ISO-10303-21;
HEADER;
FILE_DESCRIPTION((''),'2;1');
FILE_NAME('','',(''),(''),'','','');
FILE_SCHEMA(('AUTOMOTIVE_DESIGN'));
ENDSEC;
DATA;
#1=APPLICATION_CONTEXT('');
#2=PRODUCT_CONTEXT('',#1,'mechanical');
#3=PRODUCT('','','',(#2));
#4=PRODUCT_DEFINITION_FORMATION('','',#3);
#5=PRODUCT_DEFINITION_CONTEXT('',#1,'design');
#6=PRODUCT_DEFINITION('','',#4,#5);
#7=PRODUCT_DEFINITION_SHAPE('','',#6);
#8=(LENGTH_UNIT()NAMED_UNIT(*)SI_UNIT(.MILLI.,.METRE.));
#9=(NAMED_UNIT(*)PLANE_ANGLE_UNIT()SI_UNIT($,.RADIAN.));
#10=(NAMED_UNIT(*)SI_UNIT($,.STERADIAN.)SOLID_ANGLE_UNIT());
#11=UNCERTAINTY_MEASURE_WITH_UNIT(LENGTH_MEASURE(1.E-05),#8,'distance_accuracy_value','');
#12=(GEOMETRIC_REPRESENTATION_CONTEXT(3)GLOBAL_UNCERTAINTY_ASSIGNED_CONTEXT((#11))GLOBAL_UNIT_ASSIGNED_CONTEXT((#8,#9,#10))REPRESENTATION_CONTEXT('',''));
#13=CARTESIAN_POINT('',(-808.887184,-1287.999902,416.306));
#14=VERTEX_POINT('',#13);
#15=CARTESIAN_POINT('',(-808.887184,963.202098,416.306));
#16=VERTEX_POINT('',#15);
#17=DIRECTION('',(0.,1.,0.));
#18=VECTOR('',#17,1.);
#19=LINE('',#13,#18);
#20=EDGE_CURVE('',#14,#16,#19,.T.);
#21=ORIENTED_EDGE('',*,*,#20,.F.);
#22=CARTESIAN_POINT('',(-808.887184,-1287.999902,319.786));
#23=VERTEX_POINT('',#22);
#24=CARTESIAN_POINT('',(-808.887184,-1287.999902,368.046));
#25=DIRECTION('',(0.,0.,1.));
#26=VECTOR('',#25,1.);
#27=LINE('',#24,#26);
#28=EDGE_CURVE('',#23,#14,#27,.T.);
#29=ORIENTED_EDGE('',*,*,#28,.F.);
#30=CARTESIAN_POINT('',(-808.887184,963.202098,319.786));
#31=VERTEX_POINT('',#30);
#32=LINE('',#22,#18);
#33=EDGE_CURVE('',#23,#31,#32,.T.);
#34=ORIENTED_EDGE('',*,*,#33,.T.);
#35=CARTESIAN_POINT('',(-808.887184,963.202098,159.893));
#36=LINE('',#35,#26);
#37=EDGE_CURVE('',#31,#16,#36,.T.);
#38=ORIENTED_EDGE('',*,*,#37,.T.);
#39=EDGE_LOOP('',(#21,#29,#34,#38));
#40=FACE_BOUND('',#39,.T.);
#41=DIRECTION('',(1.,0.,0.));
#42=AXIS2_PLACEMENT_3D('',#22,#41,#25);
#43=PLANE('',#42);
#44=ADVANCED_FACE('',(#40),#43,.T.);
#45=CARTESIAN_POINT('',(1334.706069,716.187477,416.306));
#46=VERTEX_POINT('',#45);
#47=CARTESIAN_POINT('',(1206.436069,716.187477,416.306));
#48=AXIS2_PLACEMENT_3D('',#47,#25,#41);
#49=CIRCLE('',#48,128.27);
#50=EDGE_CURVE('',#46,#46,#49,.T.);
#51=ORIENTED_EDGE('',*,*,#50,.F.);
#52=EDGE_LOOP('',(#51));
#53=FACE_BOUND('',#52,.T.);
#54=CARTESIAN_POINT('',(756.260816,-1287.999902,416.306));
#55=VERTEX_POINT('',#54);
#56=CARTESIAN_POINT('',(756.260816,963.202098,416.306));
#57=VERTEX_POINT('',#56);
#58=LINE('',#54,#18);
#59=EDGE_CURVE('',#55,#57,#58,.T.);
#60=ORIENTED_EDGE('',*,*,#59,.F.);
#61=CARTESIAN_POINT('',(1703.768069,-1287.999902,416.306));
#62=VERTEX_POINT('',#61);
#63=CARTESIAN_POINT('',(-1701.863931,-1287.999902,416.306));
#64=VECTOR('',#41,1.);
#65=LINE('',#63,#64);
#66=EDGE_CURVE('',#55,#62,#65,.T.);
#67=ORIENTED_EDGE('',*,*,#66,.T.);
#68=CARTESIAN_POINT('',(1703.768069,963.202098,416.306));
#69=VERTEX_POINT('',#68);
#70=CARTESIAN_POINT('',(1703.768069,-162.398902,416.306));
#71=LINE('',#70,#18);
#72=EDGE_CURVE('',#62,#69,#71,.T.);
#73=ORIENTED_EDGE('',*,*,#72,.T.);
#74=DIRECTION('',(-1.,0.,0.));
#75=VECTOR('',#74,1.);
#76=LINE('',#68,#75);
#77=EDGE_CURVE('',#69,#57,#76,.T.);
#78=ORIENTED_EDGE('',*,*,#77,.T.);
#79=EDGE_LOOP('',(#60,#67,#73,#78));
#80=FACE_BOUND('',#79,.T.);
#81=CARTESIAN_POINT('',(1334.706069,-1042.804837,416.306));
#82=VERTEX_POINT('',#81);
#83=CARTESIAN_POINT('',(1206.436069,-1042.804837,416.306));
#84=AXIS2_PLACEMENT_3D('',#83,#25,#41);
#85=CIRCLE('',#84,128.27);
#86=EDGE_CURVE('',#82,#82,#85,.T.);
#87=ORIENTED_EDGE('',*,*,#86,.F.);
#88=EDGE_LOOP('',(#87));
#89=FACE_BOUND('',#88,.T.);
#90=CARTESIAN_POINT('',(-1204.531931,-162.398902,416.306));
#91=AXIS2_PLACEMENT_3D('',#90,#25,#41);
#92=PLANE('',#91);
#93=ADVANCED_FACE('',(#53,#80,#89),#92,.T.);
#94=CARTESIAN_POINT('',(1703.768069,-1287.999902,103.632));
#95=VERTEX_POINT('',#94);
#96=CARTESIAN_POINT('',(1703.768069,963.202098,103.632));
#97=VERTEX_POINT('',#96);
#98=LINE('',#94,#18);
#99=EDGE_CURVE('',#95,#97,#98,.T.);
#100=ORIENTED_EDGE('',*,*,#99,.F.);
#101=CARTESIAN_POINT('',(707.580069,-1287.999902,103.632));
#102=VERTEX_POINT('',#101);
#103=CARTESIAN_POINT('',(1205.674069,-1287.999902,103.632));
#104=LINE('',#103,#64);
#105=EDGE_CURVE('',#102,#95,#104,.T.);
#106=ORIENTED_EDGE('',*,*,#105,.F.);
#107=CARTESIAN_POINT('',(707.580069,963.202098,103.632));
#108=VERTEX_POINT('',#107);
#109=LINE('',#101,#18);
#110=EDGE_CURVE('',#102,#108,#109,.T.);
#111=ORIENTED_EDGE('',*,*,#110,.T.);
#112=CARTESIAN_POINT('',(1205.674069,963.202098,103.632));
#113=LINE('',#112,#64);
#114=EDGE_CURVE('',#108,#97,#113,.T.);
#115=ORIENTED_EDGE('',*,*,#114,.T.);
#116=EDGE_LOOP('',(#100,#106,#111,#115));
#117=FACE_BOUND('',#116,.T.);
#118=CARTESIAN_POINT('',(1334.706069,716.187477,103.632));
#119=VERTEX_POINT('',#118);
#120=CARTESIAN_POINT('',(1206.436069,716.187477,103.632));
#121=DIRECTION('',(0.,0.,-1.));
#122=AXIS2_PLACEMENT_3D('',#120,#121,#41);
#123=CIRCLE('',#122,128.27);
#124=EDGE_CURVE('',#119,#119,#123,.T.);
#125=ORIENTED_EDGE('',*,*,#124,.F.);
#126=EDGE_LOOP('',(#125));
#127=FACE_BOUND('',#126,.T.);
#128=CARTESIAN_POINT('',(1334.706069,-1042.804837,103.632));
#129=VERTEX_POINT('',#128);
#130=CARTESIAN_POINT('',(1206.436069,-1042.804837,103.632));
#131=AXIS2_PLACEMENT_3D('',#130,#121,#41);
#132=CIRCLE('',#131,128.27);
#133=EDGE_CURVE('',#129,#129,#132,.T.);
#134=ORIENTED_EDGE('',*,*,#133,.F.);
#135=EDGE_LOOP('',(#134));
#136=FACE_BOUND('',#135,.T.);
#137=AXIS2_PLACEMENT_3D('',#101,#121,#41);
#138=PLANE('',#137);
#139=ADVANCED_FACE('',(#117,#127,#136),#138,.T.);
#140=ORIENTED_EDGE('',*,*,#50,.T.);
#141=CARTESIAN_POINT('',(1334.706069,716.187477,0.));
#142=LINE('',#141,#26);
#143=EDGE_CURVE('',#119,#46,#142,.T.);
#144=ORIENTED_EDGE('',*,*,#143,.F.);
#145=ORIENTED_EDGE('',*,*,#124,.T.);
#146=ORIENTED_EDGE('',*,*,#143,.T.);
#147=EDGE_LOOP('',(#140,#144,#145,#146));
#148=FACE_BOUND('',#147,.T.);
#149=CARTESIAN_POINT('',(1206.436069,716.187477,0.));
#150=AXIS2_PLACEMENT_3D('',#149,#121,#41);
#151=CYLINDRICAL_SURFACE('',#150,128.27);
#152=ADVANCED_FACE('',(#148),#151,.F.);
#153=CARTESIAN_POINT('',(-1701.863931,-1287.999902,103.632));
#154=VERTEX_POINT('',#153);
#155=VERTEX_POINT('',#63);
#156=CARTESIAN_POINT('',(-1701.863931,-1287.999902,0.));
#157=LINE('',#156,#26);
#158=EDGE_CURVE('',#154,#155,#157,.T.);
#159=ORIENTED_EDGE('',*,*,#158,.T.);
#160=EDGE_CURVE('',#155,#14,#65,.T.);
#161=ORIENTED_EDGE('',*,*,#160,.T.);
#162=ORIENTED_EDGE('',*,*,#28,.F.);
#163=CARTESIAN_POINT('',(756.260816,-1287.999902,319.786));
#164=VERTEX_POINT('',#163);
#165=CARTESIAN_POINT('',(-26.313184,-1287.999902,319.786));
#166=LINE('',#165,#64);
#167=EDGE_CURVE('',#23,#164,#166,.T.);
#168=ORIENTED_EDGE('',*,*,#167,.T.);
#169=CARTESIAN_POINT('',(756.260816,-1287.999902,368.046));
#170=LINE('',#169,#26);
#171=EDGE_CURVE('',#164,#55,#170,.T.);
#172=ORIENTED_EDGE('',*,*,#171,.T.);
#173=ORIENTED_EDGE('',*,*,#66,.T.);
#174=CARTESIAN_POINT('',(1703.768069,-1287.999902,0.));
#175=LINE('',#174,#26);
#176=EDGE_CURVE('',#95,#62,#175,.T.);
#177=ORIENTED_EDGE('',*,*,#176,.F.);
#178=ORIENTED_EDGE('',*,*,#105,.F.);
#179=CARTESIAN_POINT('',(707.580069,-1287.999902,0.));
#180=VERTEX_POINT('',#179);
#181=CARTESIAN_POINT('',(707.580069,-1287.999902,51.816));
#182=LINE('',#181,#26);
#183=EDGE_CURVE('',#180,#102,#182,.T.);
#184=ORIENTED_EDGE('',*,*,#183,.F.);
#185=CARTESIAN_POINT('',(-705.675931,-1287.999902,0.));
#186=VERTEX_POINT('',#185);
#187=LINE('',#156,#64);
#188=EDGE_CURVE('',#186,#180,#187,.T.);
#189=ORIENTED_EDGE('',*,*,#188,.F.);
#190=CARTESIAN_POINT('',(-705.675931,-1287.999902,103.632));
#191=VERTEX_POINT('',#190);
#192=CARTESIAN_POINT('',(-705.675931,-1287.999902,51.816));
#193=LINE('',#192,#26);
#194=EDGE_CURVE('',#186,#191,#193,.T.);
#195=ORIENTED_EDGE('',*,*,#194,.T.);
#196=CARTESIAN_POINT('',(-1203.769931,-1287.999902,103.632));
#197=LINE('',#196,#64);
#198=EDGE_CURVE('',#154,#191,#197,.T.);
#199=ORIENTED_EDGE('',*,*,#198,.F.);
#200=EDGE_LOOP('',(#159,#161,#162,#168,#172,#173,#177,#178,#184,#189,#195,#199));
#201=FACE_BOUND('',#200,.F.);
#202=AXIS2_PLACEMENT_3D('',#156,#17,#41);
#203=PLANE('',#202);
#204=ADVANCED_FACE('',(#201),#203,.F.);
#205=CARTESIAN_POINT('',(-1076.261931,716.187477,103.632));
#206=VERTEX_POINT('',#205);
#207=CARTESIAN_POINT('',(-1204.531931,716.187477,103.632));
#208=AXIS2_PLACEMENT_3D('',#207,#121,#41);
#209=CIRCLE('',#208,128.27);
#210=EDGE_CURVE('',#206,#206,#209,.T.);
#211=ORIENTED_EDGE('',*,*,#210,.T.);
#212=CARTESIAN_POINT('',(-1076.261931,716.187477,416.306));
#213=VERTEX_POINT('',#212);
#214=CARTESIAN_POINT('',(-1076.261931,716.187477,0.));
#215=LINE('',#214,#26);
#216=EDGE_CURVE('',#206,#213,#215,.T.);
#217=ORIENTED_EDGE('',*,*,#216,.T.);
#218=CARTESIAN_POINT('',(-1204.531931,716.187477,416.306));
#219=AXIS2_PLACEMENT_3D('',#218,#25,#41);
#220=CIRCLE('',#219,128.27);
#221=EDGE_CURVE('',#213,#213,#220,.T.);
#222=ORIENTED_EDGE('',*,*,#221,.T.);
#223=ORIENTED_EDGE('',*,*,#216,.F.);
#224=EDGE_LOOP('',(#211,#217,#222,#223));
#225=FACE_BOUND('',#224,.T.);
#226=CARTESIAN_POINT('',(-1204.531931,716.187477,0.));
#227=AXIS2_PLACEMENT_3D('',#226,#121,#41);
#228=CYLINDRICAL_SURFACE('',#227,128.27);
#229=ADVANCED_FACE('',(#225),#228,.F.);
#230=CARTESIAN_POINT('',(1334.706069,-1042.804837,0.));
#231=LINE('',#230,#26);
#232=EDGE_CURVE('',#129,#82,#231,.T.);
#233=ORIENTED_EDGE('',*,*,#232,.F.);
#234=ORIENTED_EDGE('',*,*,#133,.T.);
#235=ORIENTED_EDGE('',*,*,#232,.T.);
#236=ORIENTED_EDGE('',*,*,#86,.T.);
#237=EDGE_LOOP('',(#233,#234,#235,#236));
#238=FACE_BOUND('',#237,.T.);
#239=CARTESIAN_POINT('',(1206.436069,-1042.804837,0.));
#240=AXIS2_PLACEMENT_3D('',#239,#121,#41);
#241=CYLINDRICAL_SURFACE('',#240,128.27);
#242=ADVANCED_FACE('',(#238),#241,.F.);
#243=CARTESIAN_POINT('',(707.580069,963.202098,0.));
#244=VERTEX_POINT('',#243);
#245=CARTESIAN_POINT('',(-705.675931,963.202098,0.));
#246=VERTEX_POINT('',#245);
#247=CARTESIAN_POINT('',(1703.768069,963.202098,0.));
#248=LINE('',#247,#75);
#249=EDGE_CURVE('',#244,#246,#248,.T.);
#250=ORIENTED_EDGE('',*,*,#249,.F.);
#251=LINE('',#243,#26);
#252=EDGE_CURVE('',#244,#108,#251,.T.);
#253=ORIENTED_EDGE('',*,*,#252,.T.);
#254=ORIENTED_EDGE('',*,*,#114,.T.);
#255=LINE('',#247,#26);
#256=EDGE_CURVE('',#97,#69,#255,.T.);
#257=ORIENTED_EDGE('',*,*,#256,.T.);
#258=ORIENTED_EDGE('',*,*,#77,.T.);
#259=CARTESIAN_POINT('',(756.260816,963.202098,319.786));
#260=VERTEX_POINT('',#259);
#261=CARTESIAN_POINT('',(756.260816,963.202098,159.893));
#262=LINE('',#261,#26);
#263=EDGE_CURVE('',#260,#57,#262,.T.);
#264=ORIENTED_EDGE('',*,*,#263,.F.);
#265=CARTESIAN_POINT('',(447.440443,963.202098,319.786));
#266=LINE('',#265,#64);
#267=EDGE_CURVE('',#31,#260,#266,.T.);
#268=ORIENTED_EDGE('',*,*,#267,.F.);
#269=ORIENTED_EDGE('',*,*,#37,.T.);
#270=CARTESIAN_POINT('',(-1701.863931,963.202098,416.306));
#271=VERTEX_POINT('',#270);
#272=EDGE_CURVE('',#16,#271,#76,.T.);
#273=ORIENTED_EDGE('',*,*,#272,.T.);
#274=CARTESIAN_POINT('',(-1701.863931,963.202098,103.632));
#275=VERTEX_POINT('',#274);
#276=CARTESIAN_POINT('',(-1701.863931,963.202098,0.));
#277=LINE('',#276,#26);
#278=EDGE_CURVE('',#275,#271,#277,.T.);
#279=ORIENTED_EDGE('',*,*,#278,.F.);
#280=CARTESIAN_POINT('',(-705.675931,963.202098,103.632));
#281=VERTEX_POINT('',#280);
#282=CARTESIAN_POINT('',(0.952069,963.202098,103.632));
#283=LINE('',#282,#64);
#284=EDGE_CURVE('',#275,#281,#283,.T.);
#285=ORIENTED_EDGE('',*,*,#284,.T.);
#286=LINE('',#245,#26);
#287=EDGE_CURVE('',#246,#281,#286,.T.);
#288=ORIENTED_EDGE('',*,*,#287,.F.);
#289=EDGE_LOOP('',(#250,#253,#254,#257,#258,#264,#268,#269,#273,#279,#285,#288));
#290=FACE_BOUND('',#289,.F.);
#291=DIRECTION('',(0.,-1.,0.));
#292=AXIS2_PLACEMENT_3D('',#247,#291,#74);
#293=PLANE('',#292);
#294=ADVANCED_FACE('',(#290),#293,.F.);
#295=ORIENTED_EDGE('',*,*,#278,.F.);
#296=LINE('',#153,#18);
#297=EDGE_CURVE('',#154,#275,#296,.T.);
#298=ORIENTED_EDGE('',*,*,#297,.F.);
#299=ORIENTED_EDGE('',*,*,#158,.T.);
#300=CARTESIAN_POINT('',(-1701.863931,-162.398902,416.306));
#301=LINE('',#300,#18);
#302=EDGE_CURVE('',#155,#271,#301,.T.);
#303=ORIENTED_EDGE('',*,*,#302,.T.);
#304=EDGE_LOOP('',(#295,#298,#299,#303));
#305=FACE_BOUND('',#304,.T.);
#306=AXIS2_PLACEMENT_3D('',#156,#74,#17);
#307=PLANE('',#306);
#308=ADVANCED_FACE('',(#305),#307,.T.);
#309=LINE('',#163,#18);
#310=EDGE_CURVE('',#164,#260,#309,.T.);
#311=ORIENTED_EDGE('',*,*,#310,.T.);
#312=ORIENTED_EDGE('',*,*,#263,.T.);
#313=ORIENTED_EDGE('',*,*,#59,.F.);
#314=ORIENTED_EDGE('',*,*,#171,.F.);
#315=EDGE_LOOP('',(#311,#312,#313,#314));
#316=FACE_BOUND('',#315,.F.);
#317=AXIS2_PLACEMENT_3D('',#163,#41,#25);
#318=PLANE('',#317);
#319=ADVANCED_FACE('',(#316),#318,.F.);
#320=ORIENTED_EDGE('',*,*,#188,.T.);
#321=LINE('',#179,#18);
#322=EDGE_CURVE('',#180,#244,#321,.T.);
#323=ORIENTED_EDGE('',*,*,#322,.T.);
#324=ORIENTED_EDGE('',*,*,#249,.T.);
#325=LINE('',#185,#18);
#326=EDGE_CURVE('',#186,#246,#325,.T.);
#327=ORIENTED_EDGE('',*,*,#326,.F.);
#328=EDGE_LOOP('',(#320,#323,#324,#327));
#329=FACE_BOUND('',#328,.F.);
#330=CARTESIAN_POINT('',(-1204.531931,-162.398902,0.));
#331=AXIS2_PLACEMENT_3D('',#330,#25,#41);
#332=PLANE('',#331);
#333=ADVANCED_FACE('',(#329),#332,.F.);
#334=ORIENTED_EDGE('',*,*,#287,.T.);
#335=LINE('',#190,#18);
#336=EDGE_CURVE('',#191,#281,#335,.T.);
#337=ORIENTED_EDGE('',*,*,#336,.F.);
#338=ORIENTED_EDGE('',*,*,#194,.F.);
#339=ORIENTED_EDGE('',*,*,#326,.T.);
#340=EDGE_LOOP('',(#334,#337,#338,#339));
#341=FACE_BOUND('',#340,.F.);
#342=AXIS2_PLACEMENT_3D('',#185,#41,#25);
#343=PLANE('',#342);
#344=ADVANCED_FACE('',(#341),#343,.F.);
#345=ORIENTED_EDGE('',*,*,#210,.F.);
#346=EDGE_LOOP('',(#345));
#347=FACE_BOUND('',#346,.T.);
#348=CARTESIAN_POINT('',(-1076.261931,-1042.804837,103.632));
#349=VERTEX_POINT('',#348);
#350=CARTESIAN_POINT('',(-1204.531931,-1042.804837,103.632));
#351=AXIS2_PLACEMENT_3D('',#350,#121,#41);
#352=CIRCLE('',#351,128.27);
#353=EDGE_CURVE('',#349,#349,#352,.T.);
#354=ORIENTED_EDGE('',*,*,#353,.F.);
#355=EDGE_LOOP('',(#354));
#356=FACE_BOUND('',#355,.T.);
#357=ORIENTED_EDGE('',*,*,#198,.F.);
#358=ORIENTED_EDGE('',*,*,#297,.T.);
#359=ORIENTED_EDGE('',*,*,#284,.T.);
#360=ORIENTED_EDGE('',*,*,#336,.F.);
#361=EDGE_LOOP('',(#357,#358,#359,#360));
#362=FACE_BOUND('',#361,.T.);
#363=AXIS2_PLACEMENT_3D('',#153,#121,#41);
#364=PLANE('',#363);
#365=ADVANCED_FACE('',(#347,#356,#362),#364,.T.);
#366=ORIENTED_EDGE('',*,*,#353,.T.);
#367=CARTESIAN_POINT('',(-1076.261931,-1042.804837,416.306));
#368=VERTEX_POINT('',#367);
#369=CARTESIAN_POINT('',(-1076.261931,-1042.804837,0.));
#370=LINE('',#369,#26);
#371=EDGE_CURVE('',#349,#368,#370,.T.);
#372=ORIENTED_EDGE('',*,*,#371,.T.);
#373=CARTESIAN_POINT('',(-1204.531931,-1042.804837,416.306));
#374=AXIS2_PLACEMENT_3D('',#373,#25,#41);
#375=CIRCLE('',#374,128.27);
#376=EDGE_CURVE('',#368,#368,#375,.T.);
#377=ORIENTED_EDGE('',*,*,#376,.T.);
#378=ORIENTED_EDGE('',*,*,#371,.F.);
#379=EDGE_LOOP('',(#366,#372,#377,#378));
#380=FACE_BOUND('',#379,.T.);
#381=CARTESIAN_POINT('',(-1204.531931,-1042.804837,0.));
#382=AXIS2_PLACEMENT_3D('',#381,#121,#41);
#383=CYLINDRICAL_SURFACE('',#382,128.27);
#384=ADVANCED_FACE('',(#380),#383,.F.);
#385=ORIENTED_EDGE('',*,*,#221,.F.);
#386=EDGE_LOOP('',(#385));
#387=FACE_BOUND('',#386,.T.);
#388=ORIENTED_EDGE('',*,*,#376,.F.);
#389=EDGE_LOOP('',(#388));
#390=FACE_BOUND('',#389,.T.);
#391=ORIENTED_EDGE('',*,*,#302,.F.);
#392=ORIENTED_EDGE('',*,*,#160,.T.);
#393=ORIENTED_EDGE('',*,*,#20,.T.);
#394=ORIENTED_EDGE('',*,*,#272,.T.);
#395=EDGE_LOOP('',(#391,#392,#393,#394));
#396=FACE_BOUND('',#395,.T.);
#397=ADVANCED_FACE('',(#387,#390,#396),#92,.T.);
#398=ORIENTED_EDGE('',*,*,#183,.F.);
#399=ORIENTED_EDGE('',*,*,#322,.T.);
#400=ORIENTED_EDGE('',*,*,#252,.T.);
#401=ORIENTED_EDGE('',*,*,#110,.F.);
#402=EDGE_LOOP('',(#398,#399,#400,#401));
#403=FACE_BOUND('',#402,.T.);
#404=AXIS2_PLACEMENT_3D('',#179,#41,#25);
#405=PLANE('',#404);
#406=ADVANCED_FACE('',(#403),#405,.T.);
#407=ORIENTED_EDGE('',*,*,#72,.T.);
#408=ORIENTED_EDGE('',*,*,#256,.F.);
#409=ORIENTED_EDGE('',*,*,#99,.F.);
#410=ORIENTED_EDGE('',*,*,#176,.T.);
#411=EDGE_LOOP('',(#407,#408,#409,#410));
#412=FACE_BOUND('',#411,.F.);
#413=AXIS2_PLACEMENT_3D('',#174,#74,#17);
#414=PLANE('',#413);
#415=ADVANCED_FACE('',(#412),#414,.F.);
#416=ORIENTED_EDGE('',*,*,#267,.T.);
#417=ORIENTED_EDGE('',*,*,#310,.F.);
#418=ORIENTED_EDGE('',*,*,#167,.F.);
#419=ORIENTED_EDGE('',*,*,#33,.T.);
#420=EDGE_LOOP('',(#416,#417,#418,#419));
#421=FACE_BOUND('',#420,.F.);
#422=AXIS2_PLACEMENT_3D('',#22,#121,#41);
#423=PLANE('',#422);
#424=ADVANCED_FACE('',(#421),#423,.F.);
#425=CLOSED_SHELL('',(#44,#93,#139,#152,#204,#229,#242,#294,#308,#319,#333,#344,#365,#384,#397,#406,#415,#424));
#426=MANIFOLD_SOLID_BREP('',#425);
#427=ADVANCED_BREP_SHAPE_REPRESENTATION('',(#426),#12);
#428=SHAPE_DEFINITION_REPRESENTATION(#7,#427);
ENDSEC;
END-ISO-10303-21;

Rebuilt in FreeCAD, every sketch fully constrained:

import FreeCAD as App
import Part
import Sketcher
Q = App.Units.Quantity


def add_polygon(sketch, points):
    """Adds a closed chain of lines whose ends are joined by coincident constraints."""
    first, n = sketch.GeometryCount, len(points)
    for a, b in zip(points, points[1:] + points[:1]):
        sketch.addGeometry(Part.LineSegment(App.Vector(*a, 0), App.Vector(*b, 0)), False)
    for i in range(n):
        sketch.addConstraint(Sketcher.Constraint("Coincident", first + i, 2, first + (i + 1) % n, 1))

doc = App.newDocument("Part")
body = doc.addObject("PartDesign::Body", "Body")

# Sketch on XY plane
sketch1 = body.newObject("Sketcher::SketchObject", "Sketch")
sketch1.AttachmentSupport = (doc.getObject("XY_Plane"), [""])
sketch1.MapMode = "FlatFace"
add_polygon(sketch1, [(-1702, 963), (-1702, -1288), (1704, -1288), (1704, 963)])  # lines 0-3
sketch1.addGeometry(Part.Circle(App.Vector(-1205, -1043, 0), App.Vector(0, 0, 1), 128), False)  # 4
sketch1.addGeometry(Part.Circle(App.Vector(1206, -1043, 0), App.Vector(0, 0, 1), 128), False)  # 5
sketch1.addGeometry(Part.Circle(App.Vector(-1205, 716, 0), App.Vector(0, 0, 1), 128), False)  # 6
sketch1.addGeometry(Part.Circle(App.Vector(1206, 716, 0), App.Vector(0, 0, 1), 128), False)  # 7
sketch1.addConstraint(Sketcher.Constraint("Vertical", 0))
sketch1.addConstraint(Sketcher.Constraint("Horizontal", 1))
sketch1.addConstraint(Sketcher.Constraint("Vertical", 2))
sketch1.addConstraint(Sketcher.Constraint("Horizontal", 3))
sketch1.addConstraint(Sketcher.Constraint("Equal", 4, 5))
sketch1.addConstraint(Sketcher.Constraint("Equal", 5, 6))
sketch1.addConstraint(Sketcher.Constraint("Equal", 6, 7))
sketch1.addConstraint(Sketcher.Constraint("Horizontal", 4, 3, 5, 3))
sketch1.addConstraint(Sketcher.Constraint("Horizontal", 6, 3, 7, 3))
sketch1.addConstraint(Sketcher.Constraint("Vertical", 4, 3, 6, 3))
sketch1.addConstraint(Sketcher.Constraint("Vertical", 5, 3, 7, 3))
sketch1.addConstraint(Sketcher.Constraint("Diameter", 4, Q("10.1 in")))
sketch1.addConstraint(Sketcher.Constraint("DistanceX", 1, 1, 1, 2, Q("134.08 in")))
sketch1.addConstraint(Sketcher.Constraint("DistanceY", 0, 2, 0, 1, Q("88.63 in")))
sketch1.addConstraint(Sketcher.Constraint("DistanceX", 0, 2, 5, 3, Q("114.5 in")))
sketch1.addConstraint(Sketcher.Constraint("DistanceX", 4, 3, 1, 2, Q("114.5 in")))
sketch1.addConstraint(Sketcher.Constraint("DistanceY", 0, 2, -1, 1, Q("1287.999902 mm")))
sketch1.addConstraint(Sketcher.Constraint("DistanceX", 4, 3, -1, 1, Q("1204.531931 mm")))
sketch1.addConstraint(Sketcher.Constraint("DistanceY", 0, 2, 6, 3, Q("2004.187379 mm")))
sketch1.addConstraint(Sketcher.Constraint("DistanceY", 4, 3, -1, 1, Q("1042.804837 mm")))
pad1 = body.newObject("PartDesign::Pad", "Pad")
pad1.Profile = sketch1
pad1.Length = Q("16.39 in")

# Sketch on XZ plane
sketch2 = body.newObject("Sketcher::SketchObject", "Sketch001")
sketch2.AttachmentSupport = (doc.getObject("XZ_Plane"), [""])
sketch2.MapMode = "FlatFace"
sketch2.AttachmentOffset = App.Placement(App.Vector(0, 0, 1287.999902), App.Rotation())
add_polygon(sketch2, [(-809, 416), (-809, 320), (756, 320), (756, 416)])  # lines 0-3
add_polygon(sketch2, [(-1702, 104), (-1702, 0), (-706, 0), (-706, 104)])  # lines 4-7
add_polygon(sketch2, [(708, 104), (708, 0), (1704, 0), (1704, 104)])  # lines 8-11
sketch2.addConstraint(Sketcher.Constraint("Vertical", 0))
sketch2.addConstraint(Sketcher.Constraint("Horizontal", 1))
sketch2.addConstraint(Sketcher.Constraint("Vertical", 2))
sketch2.addConstraint(Sketcher.Constraint("Horizontal", 3))
sketch2.addConstraint(Sketcher.Constraint("Vertical", 4))
sketch2.addConstraint(Sketcher.Constraint("Horizontal", 5))
sketch2.addConstraint(Sketcher.Constraint("Vertical", 6))
sketch2.addConstraint(Sketcher.Constraint("Horizontal", 7))
sketch2.addConstraint(Sketcher.Constraint("Vertical", 8))
sketch2.addConstraint(Sketcher.Constraint("Horizontal", 9))
sketch2.addConstraint(Sketcher.Constraint("Vertical", 10))
sketch2.addConstraint(Sketcher.Constraint("Horizontal", 11))
sketch2.addConstraint(Sketcher.Constraint("PointOnObject", 4, 2, -1))
sketch2.addConstraint(Sketcher.Constraint("PointOnObject", 8, 2, -1))
sketch2.addConstraint(Sketcher.Constraint("Horizontal", 7, 2, 10, 2))
sketch2.addConstraint(Sketcher.Constraint("Equal", 7, 9))
sketch2.addConstraint(Sketcher.Constraint("DistanceY", 0, 2, 0, 1, Q("3.8 in")))
sketch2.addConstraint(Sketcher.Constraint("DistanceX", 1, 1, 1, 2, Q("61.62 in")))
sketch2.addConstraint(Sketcher.Constraint("DistanceX", 5, 1, 5, 2, Q("39.22 in")))
sketch2.addConstraint(Sketcher.Constraint("DistanceY", 4, 2, 4, 1, Q("4.08 in")))
sketch2.addConstraint(Sketcher.Constraint("DistanceY", -1, 1, 0, 2, Q("12.59 in")))
sketch2.addConstraint(Sketcher.Constraint("DistanceX", 5, 2, 8, 2, Q("55.64 in")))
sketch2.addConstraint(Sketcher.Constraint("DistanceX", 4, 2, -1, 1, Q("1701.863931 mm")))
sketch2.addConstraint(Sketcher.Constraint("DistanceX", 0, 2, -1, 1, Q("808.887184 mm")))
pocket1 = body.newObject("PartDesign::Pocket", "Pocket")
pocket1.Profile = sketch2
pocket1.Length = Q("100 in")

doc.recompute()
